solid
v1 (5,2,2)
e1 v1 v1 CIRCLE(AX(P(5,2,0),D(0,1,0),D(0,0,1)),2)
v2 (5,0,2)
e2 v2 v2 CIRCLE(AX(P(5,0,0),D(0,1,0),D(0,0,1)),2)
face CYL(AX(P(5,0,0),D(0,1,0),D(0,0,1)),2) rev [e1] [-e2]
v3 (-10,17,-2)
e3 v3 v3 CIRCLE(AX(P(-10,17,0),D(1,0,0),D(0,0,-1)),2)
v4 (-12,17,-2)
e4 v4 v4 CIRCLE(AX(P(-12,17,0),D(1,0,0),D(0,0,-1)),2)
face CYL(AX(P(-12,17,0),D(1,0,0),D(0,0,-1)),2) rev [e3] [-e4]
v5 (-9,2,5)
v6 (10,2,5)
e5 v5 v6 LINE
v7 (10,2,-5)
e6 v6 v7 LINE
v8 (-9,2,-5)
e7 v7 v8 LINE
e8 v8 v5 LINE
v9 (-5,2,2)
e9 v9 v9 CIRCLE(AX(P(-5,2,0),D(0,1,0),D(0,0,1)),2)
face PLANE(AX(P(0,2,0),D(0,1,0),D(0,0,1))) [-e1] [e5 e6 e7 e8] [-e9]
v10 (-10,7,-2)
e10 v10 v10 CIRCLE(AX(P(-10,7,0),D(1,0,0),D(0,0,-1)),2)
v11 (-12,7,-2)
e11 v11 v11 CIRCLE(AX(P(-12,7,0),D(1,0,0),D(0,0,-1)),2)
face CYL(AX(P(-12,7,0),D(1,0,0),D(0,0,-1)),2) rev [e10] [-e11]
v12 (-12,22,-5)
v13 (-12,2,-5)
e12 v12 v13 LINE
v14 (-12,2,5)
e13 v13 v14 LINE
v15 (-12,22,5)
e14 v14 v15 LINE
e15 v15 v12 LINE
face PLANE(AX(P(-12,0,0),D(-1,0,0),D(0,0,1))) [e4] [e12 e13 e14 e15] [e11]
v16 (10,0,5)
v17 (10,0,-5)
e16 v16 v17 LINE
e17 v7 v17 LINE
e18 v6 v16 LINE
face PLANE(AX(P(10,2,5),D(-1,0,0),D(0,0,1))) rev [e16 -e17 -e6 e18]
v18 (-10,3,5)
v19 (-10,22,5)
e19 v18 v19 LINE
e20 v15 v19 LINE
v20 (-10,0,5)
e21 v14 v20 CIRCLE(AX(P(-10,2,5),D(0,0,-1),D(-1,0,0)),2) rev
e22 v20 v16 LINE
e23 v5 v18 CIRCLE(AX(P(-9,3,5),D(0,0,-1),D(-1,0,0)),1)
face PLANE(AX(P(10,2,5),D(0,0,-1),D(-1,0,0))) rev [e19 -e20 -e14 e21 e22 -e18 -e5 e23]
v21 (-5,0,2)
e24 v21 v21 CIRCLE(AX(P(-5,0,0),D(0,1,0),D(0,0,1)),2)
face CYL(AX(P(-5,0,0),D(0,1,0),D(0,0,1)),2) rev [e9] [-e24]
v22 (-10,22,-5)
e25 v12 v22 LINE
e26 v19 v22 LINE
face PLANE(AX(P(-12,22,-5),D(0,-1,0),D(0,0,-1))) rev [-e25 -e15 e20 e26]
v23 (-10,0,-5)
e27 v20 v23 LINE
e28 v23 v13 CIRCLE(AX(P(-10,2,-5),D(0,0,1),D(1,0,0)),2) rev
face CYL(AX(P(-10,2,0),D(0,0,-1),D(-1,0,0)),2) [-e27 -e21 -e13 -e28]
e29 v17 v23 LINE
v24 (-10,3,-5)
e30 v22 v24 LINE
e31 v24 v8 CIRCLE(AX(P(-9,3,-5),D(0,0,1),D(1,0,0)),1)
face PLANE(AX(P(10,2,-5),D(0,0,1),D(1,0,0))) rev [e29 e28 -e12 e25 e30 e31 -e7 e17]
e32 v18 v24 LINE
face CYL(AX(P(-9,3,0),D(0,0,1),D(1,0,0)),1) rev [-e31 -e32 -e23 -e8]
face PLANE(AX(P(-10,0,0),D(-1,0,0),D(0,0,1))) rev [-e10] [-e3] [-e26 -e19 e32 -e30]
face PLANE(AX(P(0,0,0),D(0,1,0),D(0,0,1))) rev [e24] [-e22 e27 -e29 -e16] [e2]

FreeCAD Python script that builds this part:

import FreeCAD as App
import Part
import Sketcher


def edges_at(feature, points):
    """Names of the edges that pass closest to the given points."""
    edges = feature.Shape.Edges
    near = lambda p: min(range(len(edges)), key=lambda i: edges[i].distToShape(Part.Vertex(*p))[0])
    return sorted({f"Edge{near(p) + 1}" for p in points})


def add_polygon(sketch, points):
    """Adds a closed chain of lines whose ends are joined by coincident constraints."""
    first, n = sketch.GeometryCount, len(points)
    for a, b in zip(points, points[1:] + points[:1]):
        sketch.addGeometry(Part.LineSegment(App.Vector(*a, 0), App.Vector(*b, 0)), False)
    for i in range(n):
        sketch.addConstraint(Sketcher.Constraint("Coincident", first + i, 2, first + (i + 1) % n, 1))

doc = App.newDocument("Part")
body = doc.addObject("PartDesign::Body", "Body")

# Sketch on XZ plane
sketch1 = body.newObject("Sketcher::SketchObject", "Sketch")
sketch1.AttachmentSupport = (doc.getObject("XZ_Plane"), [""])
sketch1.MapMode = "FlatFace"
add_polygon(sketch1, [(-10, -5), (-10, 5), (10, 5), (10, -5)])  # lines 0-3
sketch1.addConstraint(Sketcher.Constraint("Vertical", 0))
sketch1.addConstraint(Sketcher.Constraint("Horizontal", 1))
sketch1.addConstraint(Sketcher.Constraint("Vertical", 2))
sketch1.addConstraint(Sketcher.Constraint("Horizontal", 3))
sketch1.addConstraint(Sketcher.Constraint("Symmetric", 0, 2, 2, 2, -1, 1))
sketch1.addConstraint(Sketcher.Constraint("DistanceX", 1, 1, 1, 2, 20.0))
sketch1.addConstraint(Sketcher.Constraint("DistanceY", 0, 1, 0, 2, 10.0))
pad1 = body.newObject("PartDesign::Pad", "Pad")
pad1.Profile = sketch1
pad1.Length = 2
pad1.Reversed = True

# Sketch on YZ plane
sketch2 = body.newObject("Sketcher::SketchObject", "Sketch001")
sketch2.AttachmentSupport = (doc.getObject("YZ_Plane"), [""])
sketch2.MapMode = "FlatFace"
sketch2.AttachmentOffset = App.Placement(App.Vector(0, 0, -10), App.Rotation())
add_polygon(sketch2, [(22, -5), (0, -5), (0, 5), (22, 5)])  # lines 0-3
sketch2.addConstraint(Sketcher.Constraint("Horizontal", 0))
sketch2.addConstraint(Sketcher.Constraint("Vertical", 1))
sketch2.addConstraint(Sketcher.Constraint("Horizontal", 2))
sketch2.addConstraint(Sketcher.Constraint("Vertical", 3))
sketch2.addConstraint(Sketcher.Constraint("Symmetric", 0, 2, 1, 2, -1, 1))
sketch2.addConstraint(Sketcher.Constraint("DistanceX", 0, 2, 0, 1, 22.0))
sketch2.addConstraint(Sketcher.Constraint("DistanceY", 1, 1, 1, 2, 10.0))
pad2 = body.newObject("PartDesign::Pad", "Pad001")
pad2.Profile = sketch2
pad2.Length = 2
pad2.Reversed = True
doc.recompute()

fillet = body.newObject("PartDesign::Fillet", "Fillet")
fillet.Base = (pad2, edges_at(pad2, [(-12, 0, 0)]))
fillet.Radius = 2
doc.recompute()

fillet2 = body.newObject("PartDesign::Fillet", "Fillet001")
fillet2.Base = (fillet, edges_at(fillet, [(-10, 2, 0)]))
fillet2.Radius = 1

# Sketch on XZ plane
sketch3 = body.newObject("Sketcher::SketchObject", "Sketch002")
sketch3.AttachmentSupport = (doc.getObject("XZ_Plane"), [""])
sketch3.MapMode = "FlatFace"
sketch3.AttachmentOffset = App.Placement(App.Vector(0, 0, -2), App.Rotation())
sketch3.addGeometry(Part.Circle(App.Vector(-5, 0, 0), App.Vector(0, 0, 1), 2), False)
sketch3.addGeometry(Part.Circle(App.Vector(5, 0, 0), App.Vector(0, 0, 1), 2), False)
sketch3.addConstraint(Sketcher.Constraint("Equal", 0, 1))
sketch3.addConstraint(Sketcher.Constraint("Symmetric", 0, 3, 1, 3, -1, 1))
sketch3.addConstraint(Sketcher.Constraint("PointOnObject", 0, 3, -1))
sketch3.addConstraint(Sketcher.Constraint("Diameter", 0, 4.0))
sketch3.addConstraint(Sketcher.Constraint("DistanceX", 0, 3, -1, 1, 5.0))
pocket1 = body.newObject("PartDesign::Pocket", "Pocket")
pocket1.Profile = sketch3
pocket1.Length = 2
pocket1.Reversed = True

# Sketch on YZ plane
sketch4 = body.newObject("Sketcher::SketchObject", "Sketch003")
sketch4.AttachmentSupport = (doc.getObject("YZ_Plane"), [""])
sketch4.MapMode = "FlatFace"
sketch4.AttachmentOffset = App.Placement(App.Vector(0, 0, -10), App.Rotation())
sketch4.addGeometry(Part.Circle(App.Vector(17, 0, 0), App.Vector(0, 0, 1), 2), False)
sketch4.addGeometry(Part.Circle(App.Vector(7, 0, 0), App.Vector(0, 0, 1), 2), False)
sketch4.addConstraint(Sketcher.Constraint("Equal", 0, 1))
sketch4.addConstraint(Sketcher.Constraint("PointOnObject", 0, 3, -1))
sketch4.addConstraint(Sketcher.Constraint("PointOnObject", 1, 3, -1))
sketch4.addConstraint(Sketcher.Constraint("Diameter", 0, 4.0))
sketch4.addConstraint(Sketcher.Constraint("DistanceX", -1, 1, 0, 3, 17.0))
sketch4.addConstraint(Sketcher.Constraint("DistanceX", -1, 1, 1, 3, 7.0))
pocket2 = body.newObject("PartDesign::Pocket", "Pocket001")
pocket2.Profile = sketch4
pocket2.Length = 2

doc.recompute()
